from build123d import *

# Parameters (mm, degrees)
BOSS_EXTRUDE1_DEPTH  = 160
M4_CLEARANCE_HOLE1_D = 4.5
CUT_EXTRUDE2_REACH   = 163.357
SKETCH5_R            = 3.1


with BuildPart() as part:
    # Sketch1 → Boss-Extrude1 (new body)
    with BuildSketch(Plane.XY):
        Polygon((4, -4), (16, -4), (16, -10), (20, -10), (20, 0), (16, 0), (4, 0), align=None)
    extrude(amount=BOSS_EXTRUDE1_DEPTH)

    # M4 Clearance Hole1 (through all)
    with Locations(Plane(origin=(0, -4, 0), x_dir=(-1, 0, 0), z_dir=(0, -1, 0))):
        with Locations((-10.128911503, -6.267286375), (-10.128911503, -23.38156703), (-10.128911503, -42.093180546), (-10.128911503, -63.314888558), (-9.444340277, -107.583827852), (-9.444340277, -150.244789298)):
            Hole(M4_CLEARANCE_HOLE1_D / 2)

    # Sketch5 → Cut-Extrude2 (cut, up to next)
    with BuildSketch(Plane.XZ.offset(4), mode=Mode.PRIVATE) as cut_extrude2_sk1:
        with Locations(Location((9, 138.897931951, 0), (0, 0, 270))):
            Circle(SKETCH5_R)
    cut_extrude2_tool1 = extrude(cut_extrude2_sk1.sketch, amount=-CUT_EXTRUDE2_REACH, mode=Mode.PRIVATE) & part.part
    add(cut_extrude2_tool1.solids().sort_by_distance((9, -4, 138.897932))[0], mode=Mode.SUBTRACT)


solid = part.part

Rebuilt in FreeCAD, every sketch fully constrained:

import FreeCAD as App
import Part
import Sketcher

V = App.Vector


def add_polygon(sketch, points):
    """Adds a closed chain of lines whose ends are joined by coincident constraints."""
    first, n = sketch.GeometryCount, len(points)
    for a, b in zip(points, points[1:] + points[:1]):
        sketch.addGeometry(Part.LineSegment(App.Vector(*a, 0), App.Vector(*b, 0)), False)
    for i in range(n):
        sketch.addConstraint(Sketcher.Constraint("Coincident", first + i, 2, first + (i + 1) % n, 1))

doc = App.newDocument("Part")
body = doc.addObject("PartDesign::Body", "Body")

# Sketch on XY plane
sketch1 = body.newObject("Sketcher::SketchObject", "Sketch")
sketch1.AttachmentSupport = (doc.getObject("XY_Plane"), [""])
sketch1.MapMode = "FlatFace"
add_polygon(sketch1, [(4, -4), (16, -4), (16, -10), (20, -10), (20, 0), (4, 0)])  # lines 0-5
sketch1.addConstraint([
    Sketcher.Constraint("Horizontal", 0),
    Sketcher.Constraint("Vertical", 1),
    Sketcher.Constraint("Horizontal", 2),
    Sketcher.Constraint("Vertical", 3),
    Sketcher.Constraint("Horizontal", 4),
    Sketcher.Constraint("Vertical", 5),
    Sketcher.Constraint("PointOnObject", 3, 2, -1),
    Sketcher.Constraint("Equal", 2, 5),
    Sketcher.Constraint("DistanceX", 0, 1, 0, 2, 12.0),
    Sketcher.Constraint("DistanceX", 2, 1, 2, 2, 4.0),
    Sketcher.Constraint("DistanceY", 1, 2, 1, 1, 6.0),
    Sketcher.Constraint("DistanceX", -1, 1, 0, 2, 16.0),
])
pad1 = body.newObject("PartDesign::Pad", "Pad")
pad1.Profile = sketch1
pad1.Length = 160

# Sketch on XZ plane
sketch2 = body.newObject("Sketcher::SketchObject", "Sketch001")
sketch2.AttachmentSupport = (doc.getObject("XZ_Plane"), [""])
sketch2.MapMode = "FlatFace"
sketch2.AttachmentOffset = App.Placement(V(0, 0, 4), App.Rotation())
sketch2.addGeometry([
    Part.Circle(V(10.1, 6.3, 0), V(0, 0, 1), 2.2),  # 0
    Part.Circle(V(10.1, 23.4, 0), V(0, 0, 1), 2.2),  # 1
    Part.Circle(V(10.1, 42.1, 0), V(0, 0, 1), 2.2),  # 2
    Part.Circle(V(10.1, 63.3, 0), V(0, 0, 1), 2.2),  # 3
    Part.Circle(V(9.4, 107.6, 0), V(0, 0, 1), 2.2),  # 4
    Part.Circle(V(9.4, 150.2, 0), V(0, 0, 1), 2.2),  # 5
], False)
sketch2.addConstraint([
    Sketcher.Constraint("Equal", 0, 1),
    Sketcher.Constraint("Equal", 1, 2),
    Sketcher.Constraint("Equal", 2, 3),
    Sketcher.Constraint("Equal", 3, 4),
    Sketcher.Constraint("Equal", 4, 5),
    Sketcher.Constraint("Vertical", 0, 3, 1, 3),
    Sketcher.Constraint("Vertical", 1, 3, 2, 3),
    Sketcher.Constraint("Vertical", 2, 3, 3, 3),
    Sketcher.Constraint("Vertical", 4, 3, 5, 3),
    Sketcher.Constraint("Diameter", 0, 4.5),
    Sketcher.Constraint("DistanceY", 3, 3, 5, 3, 86.929901),
    Sketcher.Constraint("DistanceX", -1, 1, 0, 3, 10.128912),
    Sketcher.Constraint("DistanceY", -1, 1, 2, 3, 42.093181),
    Sketcher.Constraint("DistanceY", -1, 1, 3, 3, 63.314889),
    Sketcher.Constraint("DistanceX", -1, 1, 4, 3, 9.44434),
    Sketcher.Constraint("DistanceY", 0, 3, 1, 3, 17.114281),
    Sketcher.Constraint("DistanceY", 1, 3, 3, 3, 39.933322),
    Sketcher.Constraint("DistanceY", 3, 3, 4, 3, 44.268939),
])
doc.recompute()
hole = body.newObject("PartDesign::Hole", "Hole")
hole.Profile = sketch2
hole.ThreadType = "None"
hole.Diameter = 4.5
hole.DepthType = "ThroughAll"

# Sketch on XZ plane
sketch3 = body.newObject("Sketcher::SketchObject", "Sketch002")
sketch3.AttachmentSupport = (doc.getObject("XZ_Plane"), [""])
sketch3.MapMode = "FlatFace"
sketch3.AttachmentOffset = App.Placement(V(0, 0, 4), App.Rotation())
sketch3.addGeometry(Part.Circle(V(9, 138.9, 0), V(0, 0, 1), 3.1), False)
sketch3.addConstraint([
    Sketcher.Constraint("Diameter", 0, 6.2),
    Sketcher.Constraint("DistanceX", -1, 1, 0, 3, 9.0),
    Sketcher.Constraint("DistanceY", -1, 1, 0, 3, 138.897932),
])
pocket1 = body.newObject("PartDesign::Pocket", "Pocket")
pocket1.Profile = sketch3
pocket1.Type = "UpToFirst"

doc.recompute()
